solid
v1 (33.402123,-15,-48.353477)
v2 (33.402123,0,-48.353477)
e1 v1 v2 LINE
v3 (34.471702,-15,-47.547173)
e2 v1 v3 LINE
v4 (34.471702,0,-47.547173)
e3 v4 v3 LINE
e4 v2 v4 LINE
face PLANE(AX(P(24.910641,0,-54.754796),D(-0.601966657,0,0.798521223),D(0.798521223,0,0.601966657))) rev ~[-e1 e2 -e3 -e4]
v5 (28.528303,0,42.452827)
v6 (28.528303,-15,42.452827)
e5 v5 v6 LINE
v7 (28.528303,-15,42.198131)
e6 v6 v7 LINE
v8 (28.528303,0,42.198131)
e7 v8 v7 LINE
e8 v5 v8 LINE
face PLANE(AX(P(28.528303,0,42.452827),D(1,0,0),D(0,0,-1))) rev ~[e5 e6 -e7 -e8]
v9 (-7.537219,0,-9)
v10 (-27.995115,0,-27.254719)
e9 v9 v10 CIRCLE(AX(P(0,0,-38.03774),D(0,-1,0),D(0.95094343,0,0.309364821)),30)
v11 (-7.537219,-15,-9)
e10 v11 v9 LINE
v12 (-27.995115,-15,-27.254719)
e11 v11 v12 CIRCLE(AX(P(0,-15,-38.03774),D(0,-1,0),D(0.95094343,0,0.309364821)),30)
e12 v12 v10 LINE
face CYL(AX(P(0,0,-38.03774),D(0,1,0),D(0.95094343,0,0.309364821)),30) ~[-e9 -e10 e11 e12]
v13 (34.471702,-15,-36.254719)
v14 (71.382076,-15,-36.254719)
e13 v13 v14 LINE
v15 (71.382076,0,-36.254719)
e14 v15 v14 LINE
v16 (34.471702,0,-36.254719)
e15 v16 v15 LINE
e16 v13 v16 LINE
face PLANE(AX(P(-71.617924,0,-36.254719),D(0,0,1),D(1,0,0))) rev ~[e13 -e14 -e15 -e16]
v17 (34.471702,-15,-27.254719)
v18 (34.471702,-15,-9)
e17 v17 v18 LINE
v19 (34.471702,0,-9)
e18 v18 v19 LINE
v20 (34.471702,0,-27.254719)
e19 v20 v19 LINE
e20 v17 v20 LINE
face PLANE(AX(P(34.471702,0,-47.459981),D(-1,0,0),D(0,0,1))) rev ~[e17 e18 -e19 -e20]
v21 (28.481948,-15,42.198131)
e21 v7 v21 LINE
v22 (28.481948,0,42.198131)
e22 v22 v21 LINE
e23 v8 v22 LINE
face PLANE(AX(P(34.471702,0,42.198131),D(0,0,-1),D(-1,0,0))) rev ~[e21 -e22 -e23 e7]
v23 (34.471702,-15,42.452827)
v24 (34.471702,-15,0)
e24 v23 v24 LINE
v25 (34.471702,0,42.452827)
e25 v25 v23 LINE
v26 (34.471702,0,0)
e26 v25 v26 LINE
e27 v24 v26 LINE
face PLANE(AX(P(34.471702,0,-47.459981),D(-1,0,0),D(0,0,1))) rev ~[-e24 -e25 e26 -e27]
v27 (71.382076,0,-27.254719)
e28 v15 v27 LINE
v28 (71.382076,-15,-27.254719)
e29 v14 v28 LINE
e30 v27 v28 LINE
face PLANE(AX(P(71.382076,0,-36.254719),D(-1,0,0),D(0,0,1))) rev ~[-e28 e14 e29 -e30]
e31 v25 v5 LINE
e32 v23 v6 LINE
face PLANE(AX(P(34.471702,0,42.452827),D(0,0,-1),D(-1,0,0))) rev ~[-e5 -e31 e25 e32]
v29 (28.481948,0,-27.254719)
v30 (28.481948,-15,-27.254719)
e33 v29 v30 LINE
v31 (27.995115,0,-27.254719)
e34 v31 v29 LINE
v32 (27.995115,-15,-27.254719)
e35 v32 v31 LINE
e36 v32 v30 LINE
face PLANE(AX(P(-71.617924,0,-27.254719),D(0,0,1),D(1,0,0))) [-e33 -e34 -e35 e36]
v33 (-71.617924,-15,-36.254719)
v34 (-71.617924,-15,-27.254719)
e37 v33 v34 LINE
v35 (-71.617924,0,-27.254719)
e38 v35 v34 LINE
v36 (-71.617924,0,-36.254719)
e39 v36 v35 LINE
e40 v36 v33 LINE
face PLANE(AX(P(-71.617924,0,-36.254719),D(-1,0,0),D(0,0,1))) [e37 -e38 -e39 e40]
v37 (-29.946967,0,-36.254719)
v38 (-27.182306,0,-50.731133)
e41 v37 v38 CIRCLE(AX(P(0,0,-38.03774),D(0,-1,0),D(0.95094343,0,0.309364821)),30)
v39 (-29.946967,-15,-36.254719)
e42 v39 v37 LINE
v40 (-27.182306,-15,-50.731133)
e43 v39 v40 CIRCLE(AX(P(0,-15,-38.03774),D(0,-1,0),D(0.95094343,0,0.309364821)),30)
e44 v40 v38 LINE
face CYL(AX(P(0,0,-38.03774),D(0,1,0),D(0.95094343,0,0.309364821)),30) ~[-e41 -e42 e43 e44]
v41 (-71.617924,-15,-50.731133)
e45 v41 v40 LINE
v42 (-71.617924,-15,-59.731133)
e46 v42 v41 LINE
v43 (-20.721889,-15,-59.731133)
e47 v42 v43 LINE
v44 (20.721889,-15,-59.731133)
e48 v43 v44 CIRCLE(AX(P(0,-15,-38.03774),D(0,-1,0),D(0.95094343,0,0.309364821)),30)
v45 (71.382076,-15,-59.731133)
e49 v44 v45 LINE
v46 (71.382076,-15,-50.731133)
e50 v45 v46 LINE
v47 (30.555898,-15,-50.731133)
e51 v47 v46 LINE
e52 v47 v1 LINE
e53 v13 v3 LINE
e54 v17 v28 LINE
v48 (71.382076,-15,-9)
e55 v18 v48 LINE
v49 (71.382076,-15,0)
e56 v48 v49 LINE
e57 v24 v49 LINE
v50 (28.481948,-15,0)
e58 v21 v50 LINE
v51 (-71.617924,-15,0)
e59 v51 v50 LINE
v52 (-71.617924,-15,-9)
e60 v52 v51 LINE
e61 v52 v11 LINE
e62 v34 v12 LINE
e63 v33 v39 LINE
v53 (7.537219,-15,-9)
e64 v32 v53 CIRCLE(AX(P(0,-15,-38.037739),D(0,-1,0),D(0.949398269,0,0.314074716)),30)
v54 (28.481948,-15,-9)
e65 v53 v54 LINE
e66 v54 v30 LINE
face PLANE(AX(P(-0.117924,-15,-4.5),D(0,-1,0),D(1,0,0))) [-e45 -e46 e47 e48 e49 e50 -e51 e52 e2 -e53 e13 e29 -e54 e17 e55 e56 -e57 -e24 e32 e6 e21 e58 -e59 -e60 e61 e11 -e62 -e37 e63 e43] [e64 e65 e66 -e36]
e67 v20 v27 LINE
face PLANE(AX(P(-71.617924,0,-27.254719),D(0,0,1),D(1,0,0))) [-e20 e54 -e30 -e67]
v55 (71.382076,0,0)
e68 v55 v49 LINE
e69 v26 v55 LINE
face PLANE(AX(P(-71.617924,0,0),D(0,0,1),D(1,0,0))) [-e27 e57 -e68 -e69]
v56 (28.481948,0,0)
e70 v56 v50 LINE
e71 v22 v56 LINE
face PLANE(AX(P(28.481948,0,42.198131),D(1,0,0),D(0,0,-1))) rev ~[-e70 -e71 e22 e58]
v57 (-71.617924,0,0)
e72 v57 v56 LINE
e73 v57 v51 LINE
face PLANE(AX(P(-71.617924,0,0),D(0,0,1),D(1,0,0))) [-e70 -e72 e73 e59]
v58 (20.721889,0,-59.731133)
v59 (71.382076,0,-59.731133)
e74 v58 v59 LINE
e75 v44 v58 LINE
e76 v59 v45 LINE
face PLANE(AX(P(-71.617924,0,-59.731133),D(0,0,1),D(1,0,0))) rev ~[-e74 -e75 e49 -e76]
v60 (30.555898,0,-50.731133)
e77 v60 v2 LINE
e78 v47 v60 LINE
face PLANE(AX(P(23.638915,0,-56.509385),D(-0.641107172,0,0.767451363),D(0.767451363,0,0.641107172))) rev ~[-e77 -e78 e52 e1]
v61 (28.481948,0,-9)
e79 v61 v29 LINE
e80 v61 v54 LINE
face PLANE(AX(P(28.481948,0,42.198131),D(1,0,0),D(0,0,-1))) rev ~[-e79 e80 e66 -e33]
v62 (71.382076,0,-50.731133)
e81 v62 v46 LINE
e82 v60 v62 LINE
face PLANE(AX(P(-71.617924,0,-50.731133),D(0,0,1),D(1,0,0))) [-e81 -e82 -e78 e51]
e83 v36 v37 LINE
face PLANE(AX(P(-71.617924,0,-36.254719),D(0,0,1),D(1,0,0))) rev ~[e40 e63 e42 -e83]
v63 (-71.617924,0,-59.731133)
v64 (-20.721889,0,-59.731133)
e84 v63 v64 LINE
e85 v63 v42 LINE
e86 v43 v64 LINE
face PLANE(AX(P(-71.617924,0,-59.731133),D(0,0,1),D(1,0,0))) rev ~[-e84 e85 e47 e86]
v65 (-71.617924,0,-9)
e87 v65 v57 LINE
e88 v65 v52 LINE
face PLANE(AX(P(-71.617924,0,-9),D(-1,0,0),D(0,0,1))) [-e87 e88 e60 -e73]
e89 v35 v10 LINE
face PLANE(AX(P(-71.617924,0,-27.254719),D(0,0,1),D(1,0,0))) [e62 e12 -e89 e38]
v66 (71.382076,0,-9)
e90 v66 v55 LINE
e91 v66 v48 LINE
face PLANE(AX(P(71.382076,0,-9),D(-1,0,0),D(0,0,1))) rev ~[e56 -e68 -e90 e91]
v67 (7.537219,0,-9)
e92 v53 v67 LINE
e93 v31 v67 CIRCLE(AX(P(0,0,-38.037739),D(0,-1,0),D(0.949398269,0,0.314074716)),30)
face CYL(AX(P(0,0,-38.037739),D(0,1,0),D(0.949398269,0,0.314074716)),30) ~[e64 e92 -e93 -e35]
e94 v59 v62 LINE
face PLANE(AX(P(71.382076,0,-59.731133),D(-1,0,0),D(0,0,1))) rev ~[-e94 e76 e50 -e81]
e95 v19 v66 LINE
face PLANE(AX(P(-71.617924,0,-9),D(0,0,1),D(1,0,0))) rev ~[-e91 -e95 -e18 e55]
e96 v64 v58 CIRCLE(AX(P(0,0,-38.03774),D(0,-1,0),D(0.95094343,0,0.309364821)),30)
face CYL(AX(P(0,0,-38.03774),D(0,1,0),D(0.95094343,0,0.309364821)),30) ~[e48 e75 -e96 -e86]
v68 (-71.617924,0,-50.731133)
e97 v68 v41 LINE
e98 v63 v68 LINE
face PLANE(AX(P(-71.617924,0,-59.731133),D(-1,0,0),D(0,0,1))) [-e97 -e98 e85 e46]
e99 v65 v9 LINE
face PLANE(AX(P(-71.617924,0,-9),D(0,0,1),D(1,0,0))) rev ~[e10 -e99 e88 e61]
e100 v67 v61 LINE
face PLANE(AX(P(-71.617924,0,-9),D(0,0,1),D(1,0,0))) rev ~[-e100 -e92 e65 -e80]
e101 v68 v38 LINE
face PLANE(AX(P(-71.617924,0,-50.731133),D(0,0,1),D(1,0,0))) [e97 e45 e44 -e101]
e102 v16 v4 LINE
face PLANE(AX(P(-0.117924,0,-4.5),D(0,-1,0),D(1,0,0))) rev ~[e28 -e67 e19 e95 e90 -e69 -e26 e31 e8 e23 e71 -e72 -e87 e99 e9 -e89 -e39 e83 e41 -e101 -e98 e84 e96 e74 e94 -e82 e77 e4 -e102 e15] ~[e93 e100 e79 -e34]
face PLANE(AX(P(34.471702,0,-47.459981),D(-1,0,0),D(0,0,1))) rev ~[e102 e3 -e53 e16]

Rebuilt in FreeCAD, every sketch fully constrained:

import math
import FreeCAD as App
import Part
import Sketcher
from FreeCAD import Vector
Q = App.Units.Quantity


def add_polygon(sketch, points):
    """Adds a closed chain of lines whose ends are joined by coincident constraints."""
    first, n = sketch.GeometryCount, len(points)
    for a, b in zip(points, points[1:] + points[:1]):
        sketch.addGeometry(Part.LineSegment(App.Vector(*a, 0), App.Vector(*b, 0)), False)
    for i in range(n):
        sketch.addConstraint(Sketcher.Constraint("Coincident", first + i, 2, first + (i + 1) % n, 1))

doc = App.newDocument("Part")
body = doc.addObject("PartDesign::Body", "Body")

# Sketch on XZ plane
sketch1 = body.newObject("Sketcher::SketchObject", "Sketch")
sketch1.AttachmentSupport = (doc.getObject("XZ_Plane"), [""])
sketch1.MapMode = "FlatFace"
sketch1.addGeometry([
    Part.ArcOfCircle(Part.Circle(Vector(0, -38.037739, 0), Vector(0, 0, 1), 30), math.radians(18.304964), math.radians(321.995634)),  # 0
    Part.LineSegment(Vector(23.638915, -56.509385, 0), Vector(34.471702, -47.459981, 0)),  # 1
    Part.LineSegment(Vector(34.471702, -47.459981, 0), Vector(34.471702, 42.198131, 0)),  # 2
    Part.LineSegment(Vector(34.471702, 42.198131, 0), Vector(28.481948, 42.198131, 0)),  # 3
    Part.LineSegment(Vector(28.481948, 42.198131, 0), Vector(28.481948, -28.615498, 0)),  # 4
], False)
sketch1.addConstraint([
    Sketcher.Constraint("Coincident", 0, 2, 1, 1),
    Sketcher.Constraint("Coincident", 1, 2, 2, 1),
    Sketcher.Constraint("Coincident", 2, 2, 3, 1),
    Sketcher.Constraint("Coincident", 3, 2, 4, 1),
    Sketcher.Constraint("Coincident", 4, 2, 0, 1),
    Sketcher.Constraint("Vertical", 2),
    Sketcher.Constraint("Horizontal", 3),
    Sketcher.Constraint("Vertical", 4),
    Sketcher.Constraint("PointOnObject", 0, 3, -2),
    Sketcher.Constraint("Radius", 0, Q("30 mm")),
    Sketcher.Constraint("DistanceY", 2, 1, 2, 2, Q("89.658112 mm")),
    Sketcher.Constraint("DistanceY", 4, 2, 4, 1, Q("70.813629 mm")),
    Sketcher.Constraint("DistanceX", 0, 3, 1, 2, Q("34.471702 mm")),
    Sketcher.Constraint("DistanceX", 3, 2, 3, 1, Q("5.989754 mm")),
    Sketcher.Constraint("DistanceY", 0, 3, -1, 1, Q("38.037739 mm")),
    Sketcher.Constraint("Distance", 1, Q("14.115275 mm")),
])
pad1 = body.newObject("PartDesign::Pad", "Pad")
pad1.Profile = sketch1
pad1.Length = 15

# Sketch on XZ plane
sketch2 = body.newObject("Sketcher::SketchObject", "Sketch001")
sketch2.AttachmentSupport = (doc.getObject("XZ_Plane"), [""])
sketch2.MapMode = "FlatFace"
add_polygon(sketch2, [(-71.617924, 0), (-71.617924, -9), (71.382076, -9), (71.382076, 0)])  # lines 0-3
add_polygon(sketch2, [(-71.617924, -27.254719), (-71.617924, -36.254719), (71.382076, -36.254719), (71.382076, -27.254719)])  # lines 4-7
add_polygon(sketch2, [(-71.617924, -50.731133), (-71.617924, -59.731133), (71.382076, -59.731133), (71.382076, -50.731133)])  # lines 8-11
sketch2.addConstraint([
    Sketcher.Constraint("Vertical", 0),
    Sketcher.Constraint("Horizontal", 1),
    Sketcher.Constraint("Vertical", 2),
    Sketcher.Constraint("Horizontal", 3),
    Sketcher.Constraint("Vertical", 4),
    Sketcher.Constraint("Horizontal", 5),
    Sketcher.Constraint("Vertical", 6),
    Sketcher.Constraint("Horizontal", 7),
    Sketcher.Constraint("Vertical", 8),
    Sketcher.Constraint("Horizontal", 9),
    Sketcher.Constraint("Vertical", 10),
    Sketcher.Constraint("Horizontal", 11),
    Sketcher.Constraint("PointOnObject", 2, 2, -1),
    Sketcher.Constraint("Vertical", 3, 2, 4, 2),
    Sketcher.Constraint("Vertical", 2, 2, 5, 2),
    Sketcher.Constraint("Vertical", 7, 2, 8, 2),
    Sketcher.Constraint("Vertical", 6, 2, 9, 2),
    Sketcher.Constraint("Equal", 2, 4),
    Sketcher.Constraint("Equal", 6, 8),
    Sketcher.Constraint("DistanceX", 1, 1, 1, 2, Q("143 mm")),
    Sketcher.Constraint("DistanceY", 0, 2, 0, 1, Q("9 mm")),
    Sketcher.Constraint("DistanceY", 4, 2, -1, 1, Q("36.254719 mm")),
    Sketcher.Constraint("DistanceX", 0, 2, -1, 1, Q("71.617924 mm")),
    Sketcher.Constraint("DistanceY", 8, 2, -1, 1, Q("59.731133 mm")),
])
pad2 = body.newObject("PartDesign::Pad", "Pad001")
pad2.Profile = sketch2
pad2.Length = 15

# Sketch on XZ plane
sketch3 = body.newObject("Sketcher::SketchObject", "Sketch002")
sketch3.AttachmentSupport = (doc.getObject("XZ_Plane"), [""])
sketch3.MapMode = "FlatFace"
sketch3.addGeometry([
    Part.ArcOfCircle(Part.Circle(Vector(0, -38.03774, 0), Vector(0, 0, 1), 30), math.radians(18.020956), math.radians(326.135191)),  # 0
    Part.LineSegment(Vector(24.910641, -54.754796, 0), Vector(34.471702, -47.547173, 0)),  # 1
    Part.LineSegment(Vector(34.471702, -47.547173, 0), Vector(34.471702, 42.452827, 0)),  # 2
    Part.LineSegment(Vector(34.471702, 42.452827, 0), Vector(28.528303, 42.452827, 0)),  # 3
    Part.LineSegment(Vector(28.528303, 42.452827, 0), Vector(28.528303, -28.756795, 0)),  # 4
], False)
sketch3.addConstraint([
    Sketcher.Constraint("Coincident", 0, 2, 1, 1),
    Sketcher.Constraint("Coincident", 1, 2, 2, 1),
    Sketcher.Constraint("Coincident", 2, 2, 3, 1),
    Sketcher.Constraint("Coincident", 3, 2, 4, 1),
    Sketcher.Constraint("Coincident", 4, 2, 0, 1),
    Sketcher.Constraint("Vertical", 2),
    Sketcher.Constraint("Horizontal", 3),
    Sketcher.Constraint("Vertical", 4),
    Sketcher.Constraint("PointOnObject", 0, 3, -2),
    Sketcher.Constraint("Radius", 0, Q("30 mm")),
    Sketcher.Constraint("DistanceY", 2, 1, 2, 2, Q("90 mm")),
    Sketcher.Constraint("DistanceX", 3, 2, 3, 1, Q("5.943399 mm")),
    Sketcher.Constraint("DistanceY", 0, 2, 4, 2, Q("25.998001 mm")),
    Sketcher.Constraint("DistanceY", 4, 2, 4, 1, Q("71.209622 mm")),
    Sketcher.Constraint("Distance", 1, Q("11.973459 mm")),
    Sketcher.Constraint("DistanceY", 0, 3, -1, 1, Q("38.03774 mm")),
])
pad3 = body.newObject("PartDesign::Pad", "Pad002")
pad3.Profile = sketch3
pad3.Length = 15

doc.recompute()
